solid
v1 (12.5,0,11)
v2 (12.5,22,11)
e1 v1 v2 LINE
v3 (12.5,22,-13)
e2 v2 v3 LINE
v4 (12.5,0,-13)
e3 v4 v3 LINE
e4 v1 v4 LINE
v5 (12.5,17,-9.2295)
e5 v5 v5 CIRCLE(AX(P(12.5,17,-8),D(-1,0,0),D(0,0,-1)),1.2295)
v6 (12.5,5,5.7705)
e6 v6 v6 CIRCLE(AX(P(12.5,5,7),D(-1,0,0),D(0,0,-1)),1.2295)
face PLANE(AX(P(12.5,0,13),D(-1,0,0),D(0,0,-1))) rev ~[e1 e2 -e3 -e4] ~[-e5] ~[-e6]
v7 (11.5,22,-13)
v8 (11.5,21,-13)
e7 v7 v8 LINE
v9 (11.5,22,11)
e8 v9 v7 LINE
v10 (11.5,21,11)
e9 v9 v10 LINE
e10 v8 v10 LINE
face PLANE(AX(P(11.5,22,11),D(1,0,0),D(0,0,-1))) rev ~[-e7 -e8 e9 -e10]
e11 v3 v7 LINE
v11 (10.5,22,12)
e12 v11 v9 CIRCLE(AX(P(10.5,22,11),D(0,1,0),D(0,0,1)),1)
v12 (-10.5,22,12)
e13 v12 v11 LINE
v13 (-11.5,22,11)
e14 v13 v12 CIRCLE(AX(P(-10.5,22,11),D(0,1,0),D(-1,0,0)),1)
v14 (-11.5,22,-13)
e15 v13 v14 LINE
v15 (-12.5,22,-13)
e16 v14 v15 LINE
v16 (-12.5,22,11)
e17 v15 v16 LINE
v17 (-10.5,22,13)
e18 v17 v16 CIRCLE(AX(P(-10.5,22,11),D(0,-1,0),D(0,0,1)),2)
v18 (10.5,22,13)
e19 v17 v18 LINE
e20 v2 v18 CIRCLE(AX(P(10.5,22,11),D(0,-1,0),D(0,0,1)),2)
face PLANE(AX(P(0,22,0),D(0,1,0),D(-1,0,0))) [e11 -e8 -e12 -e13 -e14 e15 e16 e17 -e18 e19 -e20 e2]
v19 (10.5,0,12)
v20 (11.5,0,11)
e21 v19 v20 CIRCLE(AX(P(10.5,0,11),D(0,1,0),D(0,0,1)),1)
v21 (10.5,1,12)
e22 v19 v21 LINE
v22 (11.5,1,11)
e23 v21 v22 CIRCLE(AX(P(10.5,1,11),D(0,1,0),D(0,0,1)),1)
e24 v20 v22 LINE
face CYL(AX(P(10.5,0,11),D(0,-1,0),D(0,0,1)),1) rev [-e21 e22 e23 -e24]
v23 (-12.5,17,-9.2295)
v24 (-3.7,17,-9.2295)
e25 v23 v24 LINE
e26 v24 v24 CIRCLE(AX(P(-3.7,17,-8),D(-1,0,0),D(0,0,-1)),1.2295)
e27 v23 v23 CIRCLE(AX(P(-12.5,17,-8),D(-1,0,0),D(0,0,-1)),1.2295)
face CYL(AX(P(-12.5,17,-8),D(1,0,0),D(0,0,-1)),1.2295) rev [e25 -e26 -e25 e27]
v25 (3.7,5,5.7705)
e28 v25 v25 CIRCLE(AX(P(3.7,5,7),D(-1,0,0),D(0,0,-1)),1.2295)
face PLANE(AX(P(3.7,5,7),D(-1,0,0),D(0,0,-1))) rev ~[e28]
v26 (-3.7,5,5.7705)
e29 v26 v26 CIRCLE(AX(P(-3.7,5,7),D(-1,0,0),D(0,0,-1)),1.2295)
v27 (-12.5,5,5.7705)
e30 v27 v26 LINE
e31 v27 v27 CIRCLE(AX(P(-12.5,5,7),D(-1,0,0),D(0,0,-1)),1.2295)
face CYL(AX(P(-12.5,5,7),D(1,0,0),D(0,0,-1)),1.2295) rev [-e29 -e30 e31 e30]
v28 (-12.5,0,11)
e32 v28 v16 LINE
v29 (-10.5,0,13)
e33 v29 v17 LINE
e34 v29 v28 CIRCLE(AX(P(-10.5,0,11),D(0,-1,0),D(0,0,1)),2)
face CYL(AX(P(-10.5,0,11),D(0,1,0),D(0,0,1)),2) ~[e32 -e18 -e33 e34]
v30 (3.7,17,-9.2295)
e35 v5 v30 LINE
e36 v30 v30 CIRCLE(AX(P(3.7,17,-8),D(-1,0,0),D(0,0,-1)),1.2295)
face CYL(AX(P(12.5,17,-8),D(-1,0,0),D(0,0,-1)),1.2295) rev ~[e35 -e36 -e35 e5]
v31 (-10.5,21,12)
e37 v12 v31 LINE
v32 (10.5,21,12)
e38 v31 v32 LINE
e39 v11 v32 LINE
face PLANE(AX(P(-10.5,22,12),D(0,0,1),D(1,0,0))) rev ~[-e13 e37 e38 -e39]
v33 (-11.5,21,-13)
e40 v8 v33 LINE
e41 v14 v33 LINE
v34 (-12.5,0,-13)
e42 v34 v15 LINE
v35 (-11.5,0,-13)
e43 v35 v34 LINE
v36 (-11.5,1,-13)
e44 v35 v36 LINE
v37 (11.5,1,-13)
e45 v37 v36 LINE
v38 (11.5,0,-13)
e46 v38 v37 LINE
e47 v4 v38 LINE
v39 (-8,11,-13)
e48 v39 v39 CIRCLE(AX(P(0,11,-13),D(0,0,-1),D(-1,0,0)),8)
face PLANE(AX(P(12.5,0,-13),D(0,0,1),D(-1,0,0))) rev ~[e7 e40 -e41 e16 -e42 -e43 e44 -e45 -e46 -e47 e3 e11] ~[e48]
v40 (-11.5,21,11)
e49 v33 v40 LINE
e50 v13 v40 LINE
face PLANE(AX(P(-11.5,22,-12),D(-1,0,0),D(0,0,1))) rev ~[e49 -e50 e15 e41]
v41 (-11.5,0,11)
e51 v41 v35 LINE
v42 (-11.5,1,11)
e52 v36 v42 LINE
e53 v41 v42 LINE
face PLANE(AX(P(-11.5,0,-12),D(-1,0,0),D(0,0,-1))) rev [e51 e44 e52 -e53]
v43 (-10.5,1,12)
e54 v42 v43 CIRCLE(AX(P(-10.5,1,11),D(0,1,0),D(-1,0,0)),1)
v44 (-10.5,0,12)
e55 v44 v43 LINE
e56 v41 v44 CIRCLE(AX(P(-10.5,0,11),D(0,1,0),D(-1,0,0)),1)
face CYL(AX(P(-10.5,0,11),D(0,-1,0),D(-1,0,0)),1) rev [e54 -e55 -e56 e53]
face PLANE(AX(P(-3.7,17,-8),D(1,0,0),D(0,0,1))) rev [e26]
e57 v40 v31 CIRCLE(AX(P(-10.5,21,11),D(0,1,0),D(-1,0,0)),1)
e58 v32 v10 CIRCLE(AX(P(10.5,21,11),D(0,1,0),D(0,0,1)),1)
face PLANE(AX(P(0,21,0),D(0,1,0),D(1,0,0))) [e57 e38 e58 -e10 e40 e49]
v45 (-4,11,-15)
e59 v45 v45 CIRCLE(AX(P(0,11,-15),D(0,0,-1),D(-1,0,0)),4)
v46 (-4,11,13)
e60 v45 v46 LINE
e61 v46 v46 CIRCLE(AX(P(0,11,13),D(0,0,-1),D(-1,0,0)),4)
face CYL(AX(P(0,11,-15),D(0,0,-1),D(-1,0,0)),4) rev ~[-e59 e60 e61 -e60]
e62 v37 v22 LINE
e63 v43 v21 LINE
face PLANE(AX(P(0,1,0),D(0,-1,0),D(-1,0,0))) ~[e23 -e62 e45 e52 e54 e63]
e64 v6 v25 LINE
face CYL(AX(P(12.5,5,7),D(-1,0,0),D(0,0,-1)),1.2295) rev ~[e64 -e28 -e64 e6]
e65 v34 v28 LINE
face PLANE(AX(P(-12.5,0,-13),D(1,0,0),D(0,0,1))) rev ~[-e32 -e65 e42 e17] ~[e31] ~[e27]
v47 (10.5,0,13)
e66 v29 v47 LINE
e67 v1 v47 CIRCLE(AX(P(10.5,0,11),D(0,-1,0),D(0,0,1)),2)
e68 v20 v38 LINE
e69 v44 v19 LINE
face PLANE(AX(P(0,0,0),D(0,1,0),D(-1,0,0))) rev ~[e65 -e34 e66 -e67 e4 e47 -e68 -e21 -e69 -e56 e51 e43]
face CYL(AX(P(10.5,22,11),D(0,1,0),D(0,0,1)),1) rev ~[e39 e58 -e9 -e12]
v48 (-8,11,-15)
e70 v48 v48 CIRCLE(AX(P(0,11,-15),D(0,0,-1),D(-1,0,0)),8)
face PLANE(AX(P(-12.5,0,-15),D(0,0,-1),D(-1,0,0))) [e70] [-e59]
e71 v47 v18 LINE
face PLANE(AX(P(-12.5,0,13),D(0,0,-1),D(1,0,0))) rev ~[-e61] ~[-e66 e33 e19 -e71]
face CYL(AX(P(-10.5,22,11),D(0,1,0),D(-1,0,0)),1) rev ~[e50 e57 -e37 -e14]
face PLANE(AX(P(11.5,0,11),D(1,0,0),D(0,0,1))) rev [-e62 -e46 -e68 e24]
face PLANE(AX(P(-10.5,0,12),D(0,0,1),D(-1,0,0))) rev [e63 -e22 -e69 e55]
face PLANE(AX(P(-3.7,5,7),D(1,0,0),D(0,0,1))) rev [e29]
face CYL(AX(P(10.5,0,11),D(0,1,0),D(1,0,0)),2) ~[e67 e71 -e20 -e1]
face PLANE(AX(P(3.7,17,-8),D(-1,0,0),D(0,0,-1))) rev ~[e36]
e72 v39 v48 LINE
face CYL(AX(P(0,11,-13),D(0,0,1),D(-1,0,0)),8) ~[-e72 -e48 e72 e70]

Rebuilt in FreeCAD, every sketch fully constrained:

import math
import FreeCAD as App
import Part
import Sketcher
from FreeCAD import Vector
Q = App.Units.Quantity


def edges_at(feature, points):
    """Names of the edges that pass closest to the given points."""
    edges = feature.Shape.Edges
    near = lambda p: min(range(len(edges)), key=lambda i: edges[i].distToShape(Part.Vertex(*p))[0])
    return sorted({f"Edge{near(p) + 1}" for p in points})

doc = App.newDocument("Part")
body = doc.addObject("PartDesign::Body", "Body")

# Sketch on XZ plane
sketch1 = body.newObject("Sketcher::SketchObject", "Sketch")
sketch1.AttachmentSupport = (doc.getObject("XZ_Plane"), [""])
sketch1.MapMode = "FlatFace"
sketch1.addGeometry([
    Part.LineSegment(Vector(12, 13, 0), Vector(12, -13, 0)),
    Part.LineSegment(Vector(12, -13, 0), Vector(-12, -13, 0)),
    Part.LineSegment(Vector(-12, -13, 0), Vector(-12, 13, 0)),
    Part.LineSegment(Vector(-12, 13, 0), Vector(12, 13, 0)),
], False)
sketch1.addConstraint([
    Sketcher.Constraint("Coincident", 0, 2, 1, 1),
    Sketcher.Constraint("Coincident", 1, 2, 2, 1),
    Sketcher.Constraint("Coincident", 2, 2, 3, 1),
    Sketcher.Constraint("Coincident", 3, 2, 0, 1),
    Sketcher.Constraint("Vertical", 0),
    Sketcher.Constraint("Horizontal", 1),
    Sketcher.Constraint("Vertical", 2),
    Sketcher.Constraint("Horizontal", 3),
    Sketcher.Constraint("Symmetric", 0, 2, 2, 2, -1, 1),
    Sketcher.Constraint("DistanceX", 1, 2, 1, 1, Q("25 mm")),
    Sketcher.Constraint("DistanceY", 0, 2, 0, 1, Q("26 mm")),
])
pad1 = body.newObject("PartDesign::Pad", "Pad")
pad1.Profile = sketch1
pad1.Length = 22
pad1.Reversed = True

# Sketch on YZ plane
sketch2 = body.newObject("Sketcher::SketchObject", "Sketch001")
sketch2.AttachmentSupport = (doc.getObject("YZ_Plane"), [""])
sketch2.MapMode = "FlatFace"
sketch2.AttachmentOffset = App.Placement(Vector(0, 0, 12.5), App.Rotation())
sketch2.addGeometry([
    Part.Circle(Vector(5, 7, 0), Vector(0, 0, 1), 1.2),
    Part.Circle(Vector(17, -8, 0), Vector(0, 0, 1), 1.2),
], False)
sketch2.addConstraint([
    Sketcher.Constraint("Equal", 0, 1),
    Sketcher.Constraint("Diameter", 0, Q("2.459 mm")),
    Sketcher.Constraint("DistanceX", -1, 1, 0, 3, Q("5 mm")),
    Sketcher.Constraint("DistanceY", -1, 1, 0, 3, Q("7 mm")),
    Sketcher.Constraint("DistanceX", -1, 1, 1, 3, Q("17 mm")),
    Sketcher.Constraint("DistanceY", 1, 3, -1, 1, Q("8 mm")),
])
doc.recompute()
hole = body.newObject("PartDesign::Hole", "Hole")
hole.Profile = sketch2
hole.ThreadType = "None"
hole.Diameter = 2.459
hole.DepthType = "Dimension"
hole.Depth = 8.8
hole.DrillPoint = "Flat"
doc.recompute()

mirrored = body.newObject("PartDesign::Mirrored", "Mirrored")
mirrored.Originals = [hole]
mirrored.MirrorPlane = (doc.getObject("YZ_Plane"), [""])
body.Tip = mirrored
doc.recompute()

fillet = body.newObject("PartDesign::Fillet", "Fillet")
fillet.Base = (mirrored, edges_at(mirrored, [(12.5, 11, 13), (-12.5, 11, 13)]))
fillet.Radius = 2

# Sketch on XZ plane
sketch3 = body.newObject("Sketcher::SketchObject", "Sketch002")
sketch3.AttachmentSupport = (doc.getObject("XZ_Plane"), [""])
sketch3.MapMode = "FlatFace"
sketch3.AttachmentOffset = App.Placement(Vector(0, 0, -22), App.Rotation())
sketch3.addGeometry([
    Part.ArcOfCircle(Part.Circle(Vector(-10.5, 11, 0), Vector(0, 0, 1), 1), math.radians(90), math.radians(180)),  # 0
    Part.LineSegment(Vector(-10.5, 12, 0), Vector(10.5, 12, 0)),  # 1
    Part.ArcOfCircle(Part.Circle(Vector(10.5, 11, 0), Vector(0, 0, 1), 1), math.radians(0), math.radians(90)),  # 2
    Part.LineSegment(Vector(11.5, 11, 0), Vector(11.5, -13, 0)),  # 3
    Part.LineSegment(Vector(11.5, -13, 0), Vector(-11.5, -13, 0)),  # 4
    Part.LineSegment(Vector(-11.5, -13, 0), Vector(-11.5, 11, 0)),  # 5
], False)
sketch3.addConstraint([
    Sketcher.Constraint("Tangent", 0, 1, 1, 1),
    Sketcher.Constraint("Tangent", 1, 2, 2, 2),
    Sketcher.Constraint("Tangent", 2, 1, 3, 1),
    Sketcher.Constraint("Coincident", 3, 2, 4, 1),
    Sketcher.Constraint("Coincident", 4, 2, 5, 1),
    Sketcher.Constraint("Tangent", 5, 2, 0, 2),
    Sketcher.Constraint("Horizontal", 1),
    Sketcher.Constraint("Vertical", 3),
    Sketcher.Constraint("Horizontal", 4),
    Sketcher.Constraint("Vertical", 5),
    Sketcher.Constraint("Equal", 0, 2),
    Sketcher.Constraint("Radius", 0, Q("1 mm")),
    Sketcher.Constraint("DistanceX", 1, 1, 1, 2, Q("21 mm")),
    Sketcher.Constraint("DistanceY", 3, 2, 3, 1, Q("24 mm")),
    Sketcher.Constraint("DistanceY", -1, 1, 0, 3, Q("11 mm")),
    Sketcher.Constraint("DistanceX", 0, 3, -1, 1, Q("10.5 mm")),
])
pocket1 = body.newObject("PartDesign::Pocket", "Pocket")
pocket1.Profile = sketch3
pocket1.Length = 1
pocket1.Reversed = True
doc.recompute()

datumplane = body.newObject("PartDesign::Plane", "DatumPlane")
datumplane.AttachmentSupport = (doc.getObject("XZ_Plane"), [""])
datumplane.MapMode = "FlatFace"
datumplane.AttachmentOffset = App.Placement(Vector(0, 0, -11), App.Rotation())
mirrored2 = body.newObject("PartDesign::Mirrored", "Mirrored001")
mirrored2.Originals = [pocket1]
mirrored2.MirrorPlane = (datumplane, [""])
body.Tip = mirrored2

# Sketch on XY plane
sketch4 = body.newObject("Sketcher::SketchObject", "Sketch003")
sketch4.AttachmentSupport = (doc.getObject("XY_Plane"), [""])
sketch4.MapMode = "FlatFace"
sketch4.AttachmentOffset = App.Placement(Vector(0, 0, -13), App.Rotation())
sketch4.addGeometry(Part.Circle(Vector(0, 11, 0), Vector(0, 0, 1), 8), False)
sketch4.addConstraint([
    Sketcher.Constraint("PointOnObject", 0, 3, -2),
    Sketcher.Constraint("Diameter", 0, Q("16 mm")),
    Sketcher.Constraint("DistanceY", -1, 1, 0, 3, Q("11 mm")),
])
pad2 = body.newObject("PartDesign::Pad", "Pad001")
pad2.Profile = sketch4
pad2.Length = 2
pad2.Reversed = True

# Sketch on XY plane
sketch5 = body.newObject("Sketcher::SketchObject", "Sketch004")
sketch5.AttachmentSupport = (doc.getObject("XY_Plane"), [""])
sketch5.MapMode = "FlatFace"
sketch5.AttachmentOffset = App.Placement(Vector(0, 0, -15), App.Rotation())
sketch5.addGeometry(Part.Circle(Vector(0, 11, 0), Vector(0, 0, 1), 4), False)
sketch5.addConstraint([
    Sketcher.Constraint("PointOnObject", 0, 3, -2),
    Sketcher.Constraint("Diameter", 0, Q("8 mm")),
    Sketcher.Constraint("DistanceY", -1, 1, 0, 3, Q("11 mm")),
])
pocket2 = body.newObject("PartDesign::Pocket", "Pocket001")
pocket2.Profile = sketch5
pocket2.Type = "ThroughAll"
pocket2.Reversed = True

doc.recompute()
